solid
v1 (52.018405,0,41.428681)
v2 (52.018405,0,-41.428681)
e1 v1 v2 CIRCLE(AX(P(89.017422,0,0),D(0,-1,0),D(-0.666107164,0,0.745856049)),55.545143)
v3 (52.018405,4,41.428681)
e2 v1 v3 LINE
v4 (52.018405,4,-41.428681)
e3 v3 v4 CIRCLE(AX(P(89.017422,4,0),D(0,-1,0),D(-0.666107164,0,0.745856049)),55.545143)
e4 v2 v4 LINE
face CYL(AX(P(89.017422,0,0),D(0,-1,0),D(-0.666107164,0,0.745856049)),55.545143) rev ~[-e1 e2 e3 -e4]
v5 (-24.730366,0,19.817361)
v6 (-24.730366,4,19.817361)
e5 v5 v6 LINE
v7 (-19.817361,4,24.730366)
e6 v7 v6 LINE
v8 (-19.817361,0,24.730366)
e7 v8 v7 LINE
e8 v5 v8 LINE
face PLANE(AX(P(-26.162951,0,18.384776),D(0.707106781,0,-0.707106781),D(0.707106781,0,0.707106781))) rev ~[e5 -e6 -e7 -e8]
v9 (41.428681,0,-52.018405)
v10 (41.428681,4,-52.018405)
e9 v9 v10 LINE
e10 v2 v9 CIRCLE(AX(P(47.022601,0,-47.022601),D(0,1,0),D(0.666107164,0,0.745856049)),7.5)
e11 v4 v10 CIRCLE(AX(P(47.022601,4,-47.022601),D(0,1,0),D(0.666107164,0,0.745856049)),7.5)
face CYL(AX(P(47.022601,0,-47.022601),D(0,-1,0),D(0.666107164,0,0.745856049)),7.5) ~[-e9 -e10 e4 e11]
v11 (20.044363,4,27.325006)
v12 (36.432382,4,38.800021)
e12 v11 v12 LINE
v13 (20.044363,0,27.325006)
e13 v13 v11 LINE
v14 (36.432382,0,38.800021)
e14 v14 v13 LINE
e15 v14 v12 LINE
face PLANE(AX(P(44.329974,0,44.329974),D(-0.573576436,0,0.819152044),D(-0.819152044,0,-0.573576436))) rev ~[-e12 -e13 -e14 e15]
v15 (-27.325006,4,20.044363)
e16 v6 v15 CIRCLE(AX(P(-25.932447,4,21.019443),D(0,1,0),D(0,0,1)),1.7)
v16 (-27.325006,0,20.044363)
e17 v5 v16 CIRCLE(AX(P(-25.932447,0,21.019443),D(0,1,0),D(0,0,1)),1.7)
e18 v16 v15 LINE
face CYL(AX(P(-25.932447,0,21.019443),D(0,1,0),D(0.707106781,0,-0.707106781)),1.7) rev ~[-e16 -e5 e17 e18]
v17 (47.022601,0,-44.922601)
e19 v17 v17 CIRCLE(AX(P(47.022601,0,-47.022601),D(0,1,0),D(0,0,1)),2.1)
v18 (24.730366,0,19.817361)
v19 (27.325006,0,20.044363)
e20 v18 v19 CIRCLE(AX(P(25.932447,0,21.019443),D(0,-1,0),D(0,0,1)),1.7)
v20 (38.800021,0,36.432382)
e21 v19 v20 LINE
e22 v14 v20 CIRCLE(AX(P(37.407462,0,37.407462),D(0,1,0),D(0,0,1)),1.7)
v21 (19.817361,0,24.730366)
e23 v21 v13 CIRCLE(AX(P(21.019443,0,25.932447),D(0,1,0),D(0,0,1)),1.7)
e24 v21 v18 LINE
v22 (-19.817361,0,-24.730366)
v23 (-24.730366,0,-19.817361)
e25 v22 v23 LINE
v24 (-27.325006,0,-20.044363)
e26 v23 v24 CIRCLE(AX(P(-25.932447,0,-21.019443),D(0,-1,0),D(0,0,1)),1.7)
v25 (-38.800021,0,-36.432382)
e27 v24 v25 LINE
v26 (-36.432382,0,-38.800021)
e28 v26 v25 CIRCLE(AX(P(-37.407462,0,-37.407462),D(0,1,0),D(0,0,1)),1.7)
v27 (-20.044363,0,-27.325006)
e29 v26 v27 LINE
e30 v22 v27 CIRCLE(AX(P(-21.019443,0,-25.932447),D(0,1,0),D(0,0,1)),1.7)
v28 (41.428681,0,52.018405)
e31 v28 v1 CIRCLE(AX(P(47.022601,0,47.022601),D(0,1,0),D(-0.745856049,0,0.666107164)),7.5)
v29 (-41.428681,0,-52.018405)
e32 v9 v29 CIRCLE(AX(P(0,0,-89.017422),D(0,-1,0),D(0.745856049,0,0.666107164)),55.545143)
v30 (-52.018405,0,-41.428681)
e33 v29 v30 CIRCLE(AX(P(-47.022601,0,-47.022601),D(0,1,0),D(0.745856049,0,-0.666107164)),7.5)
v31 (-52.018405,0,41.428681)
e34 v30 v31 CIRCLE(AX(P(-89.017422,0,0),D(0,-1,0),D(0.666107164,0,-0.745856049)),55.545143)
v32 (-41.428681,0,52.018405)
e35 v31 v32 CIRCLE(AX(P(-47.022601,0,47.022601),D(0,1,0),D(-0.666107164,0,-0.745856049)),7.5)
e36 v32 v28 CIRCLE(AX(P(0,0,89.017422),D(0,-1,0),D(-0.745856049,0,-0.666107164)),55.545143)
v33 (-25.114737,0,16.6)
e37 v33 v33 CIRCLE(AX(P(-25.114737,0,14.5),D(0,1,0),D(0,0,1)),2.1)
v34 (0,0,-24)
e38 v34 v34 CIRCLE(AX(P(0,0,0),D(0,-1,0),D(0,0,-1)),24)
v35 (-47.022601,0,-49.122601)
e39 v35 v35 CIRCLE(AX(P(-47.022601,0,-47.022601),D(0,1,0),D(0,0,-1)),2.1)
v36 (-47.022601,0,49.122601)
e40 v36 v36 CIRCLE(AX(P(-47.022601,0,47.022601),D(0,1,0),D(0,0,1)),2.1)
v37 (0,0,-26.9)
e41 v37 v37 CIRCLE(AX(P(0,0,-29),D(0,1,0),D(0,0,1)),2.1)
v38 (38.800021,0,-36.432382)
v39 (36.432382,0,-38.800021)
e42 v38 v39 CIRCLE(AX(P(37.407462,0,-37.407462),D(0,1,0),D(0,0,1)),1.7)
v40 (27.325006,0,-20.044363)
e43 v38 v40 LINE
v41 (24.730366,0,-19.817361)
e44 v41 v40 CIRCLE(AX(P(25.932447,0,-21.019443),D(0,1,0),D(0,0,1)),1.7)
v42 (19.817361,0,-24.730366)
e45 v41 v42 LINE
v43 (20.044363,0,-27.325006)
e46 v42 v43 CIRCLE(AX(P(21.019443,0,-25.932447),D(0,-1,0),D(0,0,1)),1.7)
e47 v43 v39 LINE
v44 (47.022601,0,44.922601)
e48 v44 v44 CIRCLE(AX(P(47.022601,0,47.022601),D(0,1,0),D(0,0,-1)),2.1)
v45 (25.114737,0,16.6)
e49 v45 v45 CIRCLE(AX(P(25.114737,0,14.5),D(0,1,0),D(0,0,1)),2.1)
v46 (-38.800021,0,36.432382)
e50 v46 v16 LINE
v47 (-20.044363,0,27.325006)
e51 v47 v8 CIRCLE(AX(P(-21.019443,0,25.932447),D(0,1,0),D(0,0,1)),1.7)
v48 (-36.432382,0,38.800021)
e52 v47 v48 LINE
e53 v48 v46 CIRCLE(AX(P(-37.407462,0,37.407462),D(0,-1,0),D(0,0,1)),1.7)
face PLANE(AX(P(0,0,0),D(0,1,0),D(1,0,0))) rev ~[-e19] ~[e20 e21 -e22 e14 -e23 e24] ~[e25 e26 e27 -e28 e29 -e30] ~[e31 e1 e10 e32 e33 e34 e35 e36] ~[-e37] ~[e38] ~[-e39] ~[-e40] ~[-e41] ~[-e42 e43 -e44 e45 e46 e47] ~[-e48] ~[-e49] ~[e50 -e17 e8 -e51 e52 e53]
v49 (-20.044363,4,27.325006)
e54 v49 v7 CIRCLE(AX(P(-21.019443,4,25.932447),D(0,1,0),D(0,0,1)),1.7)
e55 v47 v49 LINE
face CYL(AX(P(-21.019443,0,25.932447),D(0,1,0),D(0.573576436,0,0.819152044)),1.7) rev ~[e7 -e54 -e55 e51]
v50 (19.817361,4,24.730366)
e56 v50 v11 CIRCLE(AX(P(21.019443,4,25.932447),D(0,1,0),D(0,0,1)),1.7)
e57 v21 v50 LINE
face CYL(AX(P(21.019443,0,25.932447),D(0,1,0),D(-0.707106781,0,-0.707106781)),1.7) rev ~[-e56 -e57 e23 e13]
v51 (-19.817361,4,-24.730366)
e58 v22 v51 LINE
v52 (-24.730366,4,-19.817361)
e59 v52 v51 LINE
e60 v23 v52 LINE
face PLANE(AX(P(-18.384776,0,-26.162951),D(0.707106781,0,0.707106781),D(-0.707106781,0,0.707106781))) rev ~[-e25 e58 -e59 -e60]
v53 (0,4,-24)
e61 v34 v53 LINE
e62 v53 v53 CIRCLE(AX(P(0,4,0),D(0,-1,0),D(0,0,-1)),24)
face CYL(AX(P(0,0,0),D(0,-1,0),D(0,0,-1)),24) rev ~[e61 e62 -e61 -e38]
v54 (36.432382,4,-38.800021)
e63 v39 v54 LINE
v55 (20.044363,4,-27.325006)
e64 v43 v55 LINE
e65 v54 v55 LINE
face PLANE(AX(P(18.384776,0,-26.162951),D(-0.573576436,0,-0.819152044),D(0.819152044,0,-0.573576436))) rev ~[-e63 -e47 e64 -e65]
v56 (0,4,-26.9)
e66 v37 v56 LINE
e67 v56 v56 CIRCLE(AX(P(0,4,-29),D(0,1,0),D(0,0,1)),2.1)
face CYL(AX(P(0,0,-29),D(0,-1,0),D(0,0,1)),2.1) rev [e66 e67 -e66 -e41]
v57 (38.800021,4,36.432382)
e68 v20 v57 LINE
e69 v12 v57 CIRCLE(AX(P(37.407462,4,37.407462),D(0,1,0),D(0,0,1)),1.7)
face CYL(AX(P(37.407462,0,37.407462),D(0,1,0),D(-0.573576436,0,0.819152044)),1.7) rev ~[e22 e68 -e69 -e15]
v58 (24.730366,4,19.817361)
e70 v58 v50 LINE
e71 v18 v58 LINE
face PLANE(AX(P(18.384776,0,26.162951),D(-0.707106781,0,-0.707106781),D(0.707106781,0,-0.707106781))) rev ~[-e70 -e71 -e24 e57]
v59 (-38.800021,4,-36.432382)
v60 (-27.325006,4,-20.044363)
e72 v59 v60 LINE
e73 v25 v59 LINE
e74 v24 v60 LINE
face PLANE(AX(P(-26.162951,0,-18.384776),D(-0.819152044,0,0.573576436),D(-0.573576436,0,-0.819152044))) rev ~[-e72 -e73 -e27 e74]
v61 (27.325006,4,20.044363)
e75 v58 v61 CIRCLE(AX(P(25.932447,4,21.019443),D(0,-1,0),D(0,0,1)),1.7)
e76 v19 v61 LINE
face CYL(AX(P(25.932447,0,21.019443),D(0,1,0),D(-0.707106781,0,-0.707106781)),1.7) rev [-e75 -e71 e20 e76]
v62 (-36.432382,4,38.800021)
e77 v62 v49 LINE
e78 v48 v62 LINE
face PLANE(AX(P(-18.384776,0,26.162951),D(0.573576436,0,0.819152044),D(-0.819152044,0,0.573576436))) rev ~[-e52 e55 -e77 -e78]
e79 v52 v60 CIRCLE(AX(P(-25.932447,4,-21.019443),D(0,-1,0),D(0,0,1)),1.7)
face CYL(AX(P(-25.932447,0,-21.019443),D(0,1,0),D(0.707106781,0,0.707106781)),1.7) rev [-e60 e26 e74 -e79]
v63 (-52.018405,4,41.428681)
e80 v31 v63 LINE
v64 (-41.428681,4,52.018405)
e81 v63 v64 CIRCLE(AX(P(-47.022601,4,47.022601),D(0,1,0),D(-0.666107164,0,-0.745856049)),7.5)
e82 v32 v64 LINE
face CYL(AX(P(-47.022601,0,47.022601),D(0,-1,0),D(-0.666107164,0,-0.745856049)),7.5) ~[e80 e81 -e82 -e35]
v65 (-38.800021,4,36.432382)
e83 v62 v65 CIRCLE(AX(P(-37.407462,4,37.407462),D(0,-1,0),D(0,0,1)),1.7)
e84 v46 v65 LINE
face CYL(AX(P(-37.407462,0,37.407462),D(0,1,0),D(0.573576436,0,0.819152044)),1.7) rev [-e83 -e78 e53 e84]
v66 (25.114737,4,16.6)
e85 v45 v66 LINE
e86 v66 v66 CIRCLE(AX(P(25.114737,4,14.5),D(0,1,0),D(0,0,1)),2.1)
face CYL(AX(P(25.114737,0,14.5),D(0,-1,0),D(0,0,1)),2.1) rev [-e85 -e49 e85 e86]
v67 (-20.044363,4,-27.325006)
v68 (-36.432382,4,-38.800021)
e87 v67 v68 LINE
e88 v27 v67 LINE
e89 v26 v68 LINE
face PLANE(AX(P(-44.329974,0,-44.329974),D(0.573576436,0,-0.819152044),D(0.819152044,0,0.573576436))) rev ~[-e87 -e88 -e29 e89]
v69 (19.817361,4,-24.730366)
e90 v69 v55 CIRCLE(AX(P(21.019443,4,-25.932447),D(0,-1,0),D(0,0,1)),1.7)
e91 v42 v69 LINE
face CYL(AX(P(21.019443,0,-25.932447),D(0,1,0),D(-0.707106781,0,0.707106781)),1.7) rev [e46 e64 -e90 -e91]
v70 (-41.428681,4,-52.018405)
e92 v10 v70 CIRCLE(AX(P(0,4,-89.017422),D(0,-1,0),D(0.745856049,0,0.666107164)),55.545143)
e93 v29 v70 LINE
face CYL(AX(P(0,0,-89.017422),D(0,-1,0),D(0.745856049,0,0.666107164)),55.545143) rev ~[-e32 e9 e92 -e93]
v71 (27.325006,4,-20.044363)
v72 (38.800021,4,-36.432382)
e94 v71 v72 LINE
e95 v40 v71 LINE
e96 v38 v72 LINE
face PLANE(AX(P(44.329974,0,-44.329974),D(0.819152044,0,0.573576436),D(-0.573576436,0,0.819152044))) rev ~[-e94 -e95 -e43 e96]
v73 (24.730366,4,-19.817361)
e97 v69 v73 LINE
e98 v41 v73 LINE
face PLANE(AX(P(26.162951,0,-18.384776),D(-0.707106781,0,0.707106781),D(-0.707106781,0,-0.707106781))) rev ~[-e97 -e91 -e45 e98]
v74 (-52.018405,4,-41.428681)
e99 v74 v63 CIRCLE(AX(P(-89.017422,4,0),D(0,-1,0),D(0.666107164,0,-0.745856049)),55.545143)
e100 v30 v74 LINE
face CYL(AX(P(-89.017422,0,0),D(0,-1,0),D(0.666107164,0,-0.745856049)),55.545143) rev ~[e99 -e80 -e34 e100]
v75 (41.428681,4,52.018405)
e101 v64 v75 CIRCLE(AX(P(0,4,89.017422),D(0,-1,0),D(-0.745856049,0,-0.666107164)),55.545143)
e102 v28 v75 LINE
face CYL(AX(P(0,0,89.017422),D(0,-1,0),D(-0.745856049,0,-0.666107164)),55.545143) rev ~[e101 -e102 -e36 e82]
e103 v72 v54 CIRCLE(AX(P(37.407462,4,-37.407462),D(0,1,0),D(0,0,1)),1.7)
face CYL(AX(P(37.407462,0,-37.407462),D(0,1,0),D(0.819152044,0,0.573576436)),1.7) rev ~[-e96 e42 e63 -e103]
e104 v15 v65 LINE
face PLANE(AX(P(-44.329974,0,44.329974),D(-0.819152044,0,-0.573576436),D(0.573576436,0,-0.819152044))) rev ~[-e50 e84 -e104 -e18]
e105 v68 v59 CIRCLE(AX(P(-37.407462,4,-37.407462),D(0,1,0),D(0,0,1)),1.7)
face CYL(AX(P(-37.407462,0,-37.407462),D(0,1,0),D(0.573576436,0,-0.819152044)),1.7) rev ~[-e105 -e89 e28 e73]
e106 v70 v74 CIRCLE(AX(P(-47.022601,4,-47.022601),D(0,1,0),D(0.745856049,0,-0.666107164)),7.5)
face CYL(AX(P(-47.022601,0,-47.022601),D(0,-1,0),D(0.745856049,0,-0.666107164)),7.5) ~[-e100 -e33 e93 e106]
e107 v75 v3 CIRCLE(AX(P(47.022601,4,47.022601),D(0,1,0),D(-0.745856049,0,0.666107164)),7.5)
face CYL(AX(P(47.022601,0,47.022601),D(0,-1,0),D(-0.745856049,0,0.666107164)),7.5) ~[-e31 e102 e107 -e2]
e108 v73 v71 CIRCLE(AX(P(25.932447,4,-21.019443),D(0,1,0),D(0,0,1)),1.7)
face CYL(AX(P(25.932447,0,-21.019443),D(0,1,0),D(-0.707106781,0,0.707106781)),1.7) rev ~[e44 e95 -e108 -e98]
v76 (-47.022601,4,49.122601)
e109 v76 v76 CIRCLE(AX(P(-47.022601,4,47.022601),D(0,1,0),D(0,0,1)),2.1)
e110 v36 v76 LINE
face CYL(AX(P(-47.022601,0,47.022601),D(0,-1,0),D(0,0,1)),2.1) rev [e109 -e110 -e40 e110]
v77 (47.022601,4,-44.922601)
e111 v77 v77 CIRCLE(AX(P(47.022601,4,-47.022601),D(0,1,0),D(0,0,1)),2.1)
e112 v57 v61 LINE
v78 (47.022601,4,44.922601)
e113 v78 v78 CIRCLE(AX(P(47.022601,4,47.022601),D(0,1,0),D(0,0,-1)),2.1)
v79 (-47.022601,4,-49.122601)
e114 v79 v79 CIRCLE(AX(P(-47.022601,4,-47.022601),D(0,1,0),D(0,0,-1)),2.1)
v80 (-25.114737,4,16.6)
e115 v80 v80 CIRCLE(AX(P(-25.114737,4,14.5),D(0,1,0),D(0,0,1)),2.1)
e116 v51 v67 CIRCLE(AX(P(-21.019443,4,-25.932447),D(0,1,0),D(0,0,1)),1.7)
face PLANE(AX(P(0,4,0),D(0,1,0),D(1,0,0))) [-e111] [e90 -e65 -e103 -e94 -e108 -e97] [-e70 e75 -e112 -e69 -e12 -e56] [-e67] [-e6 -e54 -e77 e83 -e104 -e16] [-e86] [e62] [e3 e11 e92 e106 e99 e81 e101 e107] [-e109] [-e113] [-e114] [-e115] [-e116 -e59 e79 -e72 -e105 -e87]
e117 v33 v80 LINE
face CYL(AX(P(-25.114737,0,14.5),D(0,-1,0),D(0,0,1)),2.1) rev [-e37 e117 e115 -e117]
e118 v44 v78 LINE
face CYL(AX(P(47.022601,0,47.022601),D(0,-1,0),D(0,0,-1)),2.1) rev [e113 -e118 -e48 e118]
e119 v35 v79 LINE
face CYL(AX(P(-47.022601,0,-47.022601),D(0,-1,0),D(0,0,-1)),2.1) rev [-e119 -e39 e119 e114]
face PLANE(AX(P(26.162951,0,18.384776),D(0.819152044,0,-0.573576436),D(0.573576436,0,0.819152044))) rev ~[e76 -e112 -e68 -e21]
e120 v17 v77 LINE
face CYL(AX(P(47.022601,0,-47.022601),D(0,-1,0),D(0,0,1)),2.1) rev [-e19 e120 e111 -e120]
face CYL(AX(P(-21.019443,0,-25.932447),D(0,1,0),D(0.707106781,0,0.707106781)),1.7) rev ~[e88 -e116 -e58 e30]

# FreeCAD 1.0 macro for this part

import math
import FreeCAD as App
import Part
import Sketcher
Q = App.Units.Quantity


def edges_at(feature, points):
    """Names of the edges that pass closest to the given points."""
    edges = feature.Shape.Edges
    near = lambda p: min(range(len(edges)), key=lambda i: edges[i].distToShape(Part.Vertex(*p))[0])
    return sorted({f"Edge{near(p) + 1}" for p in points})

doc = App.newDocument("Part")
body = doc.addObject("PartDesign::Body", "Body")

# Sketch on XZ plane
sketch1 = doc.addObject("Sketcher::SketchObject", "Sketch")
body.addObject(sketch1)
sketch1.AttachmentSupport = (doc.XZ_Plane, [""])
sketch1.MapMode = "FlatFace"
sketch1.addGeometry([
    Part.ArcOfCircle(Part.Circle(App.Vector(-47, -47, 0), App.Vector(0, 0, 1), 7.5), math.radians(132), math.radians(318)),  # 0
    Part.ArcOfCircle(Part.Circle(App.Vector(-89, 0, 0), App.Vector(0, 0, 1), 55.5), math.radians(-48), math.radians(48)),  # 1
    Part.ArcOfCircle(Part.Circle(App.Vector(-47, 47, 0), App.Vector(0, 0, 1), 7.5), math.radians(42), math.radians(228)),  # 2
    Part.ArcOfCircle(Part.Circle(App.Vector(0, 89, 0), App.Vector(0, 0, 1), 55.5), math.radians(-138), math.radians(-42)),  # 3
    Part.ArcOfCircle(Part.Circle(App.Vector(47, 47, 0), App.Vector(0, 0, 1), 7.5), math.radians(-48), math.radians(138)),  # 4
    Part.ArcOfCircle(Part.Circle(App.Vector(89, 0, 0), App.Vector(0, 0, 1), 55.5), math.radians(132), math.radians(228)),  # 5
    Part.ArcOfCircle(Part.Circle(App.Vector(47, -47, 0), App.Vector(0, 0, 1), 7.5), math.radians(-138), math.radians(48)),  # 6
    Part.ArcOfCircle(Part.Circle(App.Vector(0, -89, 0), App.Vector(0, 0, 1), 55.5), math.radians(42), math.radians(138)),  # 7
    Part.Circle(App.Vector(-47, 47, 0), App.Vector(0, 0, 1), 2.1),  # 8
    Part.Circle(App.Vector(-25.1, 14.5, 0), App.Vector(0, 0, 1), 2.1),  # 9
    Part.Circle(App.Vector(47, 47, 0), App.Vector(0, 0, 1), 2.1),  # 10
    Part.Circle(App.Vector(25.1, 14.5, 0), App.Vector(0, 0, 1), 2.1),  # 11
    Part.Circle(App.Vector(-47, -47, 0), App.Vector(0, 0, 1), 2.1),  # 12
    Part.Circle(App.Vector(0, 0, 0), App.Vector(0, 0, 1), 15),  # 13
    Part.Circle(App.Vector(0, -29, 0), App.Vector(0, 0, 1), 2.1),  # 14
    Part.Circle(App.Vector(47, -47, 0), App.Vector(0, 0, 1), 2.1),  # 15
], False)
sketch1.addConstraint([
    Sketcher.Constraint("Tangent", 0, 1, 1, 1),
    Sketcher.Constraint("Tangent", 1, 2, 2, 2),
    Sketcher.Constraint("Tangent", 2, 1, 3, 1),
    Sketcher.Constraint("Tangent", 3, 2, 4, 2),
    Sketcher.Constraint("Tangent", 4, 1, 5, 1),
    Sketcher.Constraint("Tangent", 5, 2, 6, 2),
    Sketcher.Constraint("Tangent", 6, 1, 7, 1),
    Sketcher.Constraint("Tangent", 7, 2, 0, 2),
    Sketcher.Constraint("Coincident", 13, 3, -1, 1),
    Sketcher.Constraint("Coincident", 8, 3, 2, 3),
    Sketcher.Constraint("Coincident", 10, 3, 4, 3),
    Sketcher.Constraint("Coincident", 12, 3, 0, 3),
    Sketcher.Constraint("Coincident", 15, 3, 6, 3),
    Sketcher.Constraint("Equal", 0, 2),
    Sketcher.Constraint("Equal", 1, 3),
    Sketcher.Constraint("Equal", 2, 4),
    Sketcher.Constraint("Equal", 3, 5),
    Sketcher.Constraint("Equal", 4, 6),
    Sketcher.Constraint("Equal", 5, 7),
    Sketcher.Constraint("Equal", 8, 9),
    Sketcher.Constraint("Equal", 9, 10),
    Sketcher.Constraint("Equal", 10, 11),
    Sketcher.Constraint("Equal", 11, 12),
    Sketcher.Constraint("Equal", 12, 14),
    Sketcher.Constraint("Equal", 14, 15),
    Sketcher.Constraint("Symmetric", 0, 3, 4, 3, -1, 1),
    Sketcher.Constraint("Symmetric", 2, 3, 6, 3, -1, 1),
    Sketcher.Constraint("Symmetric", 2, 3, 4, 3, -2),
    Sketcher.Constraint("Symmetric", 9, 3, 11, 3, -2),
    Sketcher.Constraint("PointOnObject", 14, 3, -2),
    Sketcher.Constraint("Diameter", 13, 30.0),
    Sketcher.Constraint("Diameter", 8, 4.2),
    Sketcher.Constraint("Radius", 0, 7.5),
    Sketcher.Constraint("DistanceY", 14, 3, -1, 1, 29.0),
    Sketcher.Constraint("DistanceY", -1, 1, 9, 3, 14.5),
    Sketcher.Constraint("Radius", 1, 55.545143),
    Sketcher.Constraint("DistanceX", 0, 3, -1, 1, 47.022601),
    Sketcher.Constraint("DistanceY", 0, 3, -1, 1, 47.022601),
    Sketcher.Constraint("DistanceX", 9, 3, -1, 1, 25.114737),
])
pad1 = doc.addObject("PartDesign::Pad", "Pad")
body.addObject(pad1)
pad1.Profile = sketch1
pad1.Length = 4
pad1.Reversed = True

# Sketch on XZ plane
sketch2 = doc.addObject("Sketcher::SketchObject", "Sketch001")
body.addObject(sketch2)
sketch2.AttachmentSupport = (doc.XZ_Plane, [""])
sketch2.MapMode = "FlatFace"
sketch2.addGeometry(Part.Circle(App.Vector(0, 0, 0), App.Vector(0, 0, 1), 24), False)
sketch2.addConstraint([
    Sketcher.Constraint("Coincident", 0, 3, -1, 1),
    Sketcher.Constraint("Diameter", 0, 48.0),
])
pocket1 = doc.addObject("PartDesign::Pocket", "Pocket")
body.addObject(pocket1)
pocket1.Profile = sketch2
pocket1.Type = "ThroughAll"

# Sketch on XZ plane
sketch3 = doc.addObject("Sketcher::SketchObject", "Sketch002")
body.addObject(sketch3)
sketch3.AttachmentSupport = (doc.XZ_Plane, [""])
sketch3.MapMode = "FlatFace"
sketch3.addGeometry([
    Part.LineSegment(App.Vector(-44, 44, 0), App.Vector(-26, 18, 0)),  # 0
    Part.LineSegment(App.Vector(-26, 18, 0), App.Vector(-18, 26, 0)),  # 1
    Part.LineSegment(App.Vector(-18, 26, 0), App.Vector(-44, 44, 0)),  # 2
    Part.LineSegment(App.Vector(26, 18, 0), App.Vector(44, 44, 0)),  # 3
    Part.LineSegment(App.Vector(44, 44, 0), App.Vector(18, 26, 0)),  # 4
    Part.LineSegment(App.Vector(18, 26, 0), App.Vector(26, 18, 0)),  # 5
    Part.LineSegment(App.Vector(18, -26, 0), App.Vector(44, -44, 0)),  # 6
    Part.LineSegment(App.Vector(44, -44, 0), App.Vector(26, -18, 0)),  # 7
    Part.LineSegment(App.Vector(26, -18, 0), App.Vector(18, -26, 0)),  # 8
    Part.LineSegment(App.Vector(-26, -18, 0), App.Vector(-44, -44, 0)),  # 9
    Part.LineSegment(App.Vector(-44, -44, 0), App.Vector(-18, -26, 0)),  # 10
    Part.LineSegment(App.Vector(-18, -26, 0), App.Vector(-26, -18, 0)),  # 11
], False)
sketch3.addConstraint([
    Sketcher.Constraint("Coincident", 0, 2, 1, 1),
    Sketcher.Constraint("Coincident", 1, 2, 2, 1),
    Sketcher.Constraint("Coincident", 2, 2, 0, 1),
    Sketcher.Constraint("Coincident", 3, 2, 4, 1),
    Sketcher.Constraint("Coincident", 4, 2, 5, 1),
    Sketcher.Constraint("Coincident", 5, 2, 3, 1),
    Sketcher.Constraint("Coincident", 6, 2, 7, 1),
    Sketcher.Constraint("Coincident", 7, 2, 8, 1),
    Sketcher.Constraint("Coincident", 8, 2, 6, 1),
    Sketcher.Constraint("Coincident", 9, 2, 10, 1),
    Sketcher.Constraint("Coincident", 10, 2, 11, 1),
    Sketcher.Constraint("Coincident", 11, 2, 9, 1),
    Sketcher.Constraint("Symmetric", 2, 2, 6, 2, -1, 1),
    Sketcher.Constraint("Symmetric", 0, 2, 7, 2, -1, 1),
    Sketcher.Constraint("Symmetric", 1, 2, 8, 2, -1, 1),
    Sketcher.Constraint("Symmetric", 3, 2, 9, 2, -1, 1),
    Sketcher.Constraint("Symmetric", 4, 2, 10, 2, -1, 1),
    Sketcher.Constraint("Symmetric", 5, 2, 11, 2, -1, 1),
    Sketcher.Constraint("Symmetric", 2, 2, 3, 2, -2),
    Sketcher.Constraint("Symmetric", 1, 2, 4, 2, -2),
    Sketcher.Constraint("Symmetric", 0, 2, 5, 2, -2),
    Sketcher.Constraint("Perpendicular", 2, 3),
    Sketcher.Constraint("Perpendicular", 1, 5),
    Sketcher.Constraint("Angle", 0, Q("-55 deg")),
    Sketcher.Constraint("Distance", 1, 11.0),
    Sketcher.Constraint("DistanceX", 0, 2, 5, 2, 52.325902),
    Sketcher.Constraint("DistanceY", 8, 2, 4, 2, 52.325902),
])
pocket2 = doc.addObject("PartDesign::Pocket", "Pocket001")
body.addObject(pocket2)
pocket2.Profile = sketch3
pocket2.Type = "ThroughAll"
doc.recompute()

fillet = doc.addObject("PartDesign::Fillet", "Fillet")
body.addObject(fillet)
fillet.Base = (pocket2, edges_at(pocket2, [
    (-18.385, 2, -26.163),
    (-44.33, 2, -44.33),
    (-26.163, 2, -18.385),
    (26.163, 2, -18.385),
    (44.33, 2, -44.33),
    (18.385, 2, -26.163),
    (18.385, 2, 26.163),
    (44.33, 2, 44.33),
    (26.163, 2, 18.385),
    (-44.33, 2, 44.33),
    (-18.385, 2, 26.163),
    (-26.163, 2, 18.385),
]))
fillet.Radius = 1.7

doc.recompute()
